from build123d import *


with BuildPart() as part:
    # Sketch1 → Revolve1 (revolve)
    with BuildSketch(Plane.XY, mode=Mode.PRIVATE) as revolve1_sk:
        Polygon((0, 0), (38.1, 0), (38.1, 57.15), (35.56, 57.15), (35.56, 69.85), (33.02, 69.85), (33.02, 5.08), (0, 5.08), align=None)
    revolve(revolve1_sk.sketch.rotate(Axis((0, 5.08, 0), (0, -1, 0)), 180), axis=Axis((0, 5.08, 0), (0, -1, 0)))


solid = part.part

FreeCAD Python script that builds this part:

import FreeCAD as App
import Part
import Sketcher
from FreeCAD import Vector
Q = App.Units.Quantity

doc = App.newDocument("Part")
body = doc.addObject("PartDesign::Body", "Body")

# Sketch on XY plane
sketch1 = body.newObject("Sketcher::SketchObject", "Sketch")
sketch1.AttachmentSupport = (doc.getObject("XY_Plane"), [""])
sketch1.MapMode = "FlatFace"
sketch1.addGeometry(Part.LineSegment(Vector(0, 0, 0), Vector(38.1, 0, 0)), False)
sketch1.addGeometry(Part.LineSegment(Vector(38.1, 0, 0), Vector(38.1, 57.15, 0)), False)
sketch1.addGeometry(Part.LineSegment(Vector(38.1, 57.15, 0), Vector(35.56, 57.15, 0)), False)
sketch1.addGeometry(Part.LineSegment(Vector(35.56, 57.15, 0), Vector(35.56, 69.85, 0)), False)
sketch1.addGeometry(Part.LineSegment(Vector(35.56, 69.85, 0), Vector(33.02, 69.85, 0)), False)
sketch1.addGeometry(Part.LineSegment(Vector(33.02, 69.85, 0), Vector(33.02, 5.08, 0)), False)
sketch1.addGeometry(Part.LineSegment(Vector(33.02, 5.08, 0), Vector(0, 5.08, 0)), False)
sketch1.addGeometry(Part.LineSegment(Vector(0, 5.08, 0), Vector(0, 0, 0)), False)
sketch1.addConstraint(Sketcher.Constraint("Coincident", 0, 2, 1, 1))
sketch1.addConstraint(Sketcher.Constraint("Coincident", 1, 2, 2, 1))
sketch1.addConstraint(Sketcher.Constraint("Coincident", 2, 2, 3, 1))
sketch1.addConstraint(Sketcher.Constraint("Coincident", 3, 2, 4, 1))
sketch1.addConstraint(Sketcher.Constraint("Coincident", 4, 2, 5, 1))
sketch1.addConstraint(Sketcher.Constraint("Coincident", 5, 2, 6, 1))
sketch1.addConstraint(Sketcher.Constraint("Coincident", 6, 2, 7, 1))
sketch1.addConstraint(Sketcher.Constraint("Coincident", 7, 2, 0, 1))
sketch1.addConstraint(Sketcher.Constraint("Horizontal", 0))
sketch1.addConstraint(Sketcher.Constraint("Vertical", 1))
sketch1.addConstraint(Sketcher.Constraint("Horizontal", 2))
sketch1.addConstraint(Sketcher.Constraint("Vertical", 3))
sketch1.addConstraint(Sketcher.Constraint("Horizontal", 4))
sketch1.addConstraint(Sketcher.Constraint("Vertical", 5))
sketch1.addConstraint(Sketcher.Constraint("Horizontal", 6))
sketch1.addConstraint(Sketcher.Constraint("Vertical", 7))
sketch1.addConstraint(Sketcher.Constraint("Coincident", 7, 2, -1, 1))
sketch1.addConstraint(Sketcher.Constraint("Equal", 2, 4))
sketch1.addConstraint(Sketcher.Constraint("DistanceX", 0, 1, 0, 2, Q("1.5 in")))
sketch1.addConstraint(Sketcher.Constraint("DistanceX", 2, 2, 2, 1, Q("0.1 in")))
sketch1.addConstraint(Sketcher.Constraint("DistanceY", 3, 1, 3, 2, Q("0.5 in")))
sketch1.addConstraint(Sketcher.Constraint("DistanceY", 7, 2, 7, 1, Q("0.2 in")))
sketch1.addConstraint(Sketcher.Constraint("DistanceY", 1, 1, 1, 2, Q("2.25 in")))
revolution = body.newObject("PartDesign::Revolution", "Revolution")
revolution.Profile = sketch1
revolution.ReferenceAxis = (sketch1, ["V_Axis"])
revolution.Angle = 360

doc.recompute()
